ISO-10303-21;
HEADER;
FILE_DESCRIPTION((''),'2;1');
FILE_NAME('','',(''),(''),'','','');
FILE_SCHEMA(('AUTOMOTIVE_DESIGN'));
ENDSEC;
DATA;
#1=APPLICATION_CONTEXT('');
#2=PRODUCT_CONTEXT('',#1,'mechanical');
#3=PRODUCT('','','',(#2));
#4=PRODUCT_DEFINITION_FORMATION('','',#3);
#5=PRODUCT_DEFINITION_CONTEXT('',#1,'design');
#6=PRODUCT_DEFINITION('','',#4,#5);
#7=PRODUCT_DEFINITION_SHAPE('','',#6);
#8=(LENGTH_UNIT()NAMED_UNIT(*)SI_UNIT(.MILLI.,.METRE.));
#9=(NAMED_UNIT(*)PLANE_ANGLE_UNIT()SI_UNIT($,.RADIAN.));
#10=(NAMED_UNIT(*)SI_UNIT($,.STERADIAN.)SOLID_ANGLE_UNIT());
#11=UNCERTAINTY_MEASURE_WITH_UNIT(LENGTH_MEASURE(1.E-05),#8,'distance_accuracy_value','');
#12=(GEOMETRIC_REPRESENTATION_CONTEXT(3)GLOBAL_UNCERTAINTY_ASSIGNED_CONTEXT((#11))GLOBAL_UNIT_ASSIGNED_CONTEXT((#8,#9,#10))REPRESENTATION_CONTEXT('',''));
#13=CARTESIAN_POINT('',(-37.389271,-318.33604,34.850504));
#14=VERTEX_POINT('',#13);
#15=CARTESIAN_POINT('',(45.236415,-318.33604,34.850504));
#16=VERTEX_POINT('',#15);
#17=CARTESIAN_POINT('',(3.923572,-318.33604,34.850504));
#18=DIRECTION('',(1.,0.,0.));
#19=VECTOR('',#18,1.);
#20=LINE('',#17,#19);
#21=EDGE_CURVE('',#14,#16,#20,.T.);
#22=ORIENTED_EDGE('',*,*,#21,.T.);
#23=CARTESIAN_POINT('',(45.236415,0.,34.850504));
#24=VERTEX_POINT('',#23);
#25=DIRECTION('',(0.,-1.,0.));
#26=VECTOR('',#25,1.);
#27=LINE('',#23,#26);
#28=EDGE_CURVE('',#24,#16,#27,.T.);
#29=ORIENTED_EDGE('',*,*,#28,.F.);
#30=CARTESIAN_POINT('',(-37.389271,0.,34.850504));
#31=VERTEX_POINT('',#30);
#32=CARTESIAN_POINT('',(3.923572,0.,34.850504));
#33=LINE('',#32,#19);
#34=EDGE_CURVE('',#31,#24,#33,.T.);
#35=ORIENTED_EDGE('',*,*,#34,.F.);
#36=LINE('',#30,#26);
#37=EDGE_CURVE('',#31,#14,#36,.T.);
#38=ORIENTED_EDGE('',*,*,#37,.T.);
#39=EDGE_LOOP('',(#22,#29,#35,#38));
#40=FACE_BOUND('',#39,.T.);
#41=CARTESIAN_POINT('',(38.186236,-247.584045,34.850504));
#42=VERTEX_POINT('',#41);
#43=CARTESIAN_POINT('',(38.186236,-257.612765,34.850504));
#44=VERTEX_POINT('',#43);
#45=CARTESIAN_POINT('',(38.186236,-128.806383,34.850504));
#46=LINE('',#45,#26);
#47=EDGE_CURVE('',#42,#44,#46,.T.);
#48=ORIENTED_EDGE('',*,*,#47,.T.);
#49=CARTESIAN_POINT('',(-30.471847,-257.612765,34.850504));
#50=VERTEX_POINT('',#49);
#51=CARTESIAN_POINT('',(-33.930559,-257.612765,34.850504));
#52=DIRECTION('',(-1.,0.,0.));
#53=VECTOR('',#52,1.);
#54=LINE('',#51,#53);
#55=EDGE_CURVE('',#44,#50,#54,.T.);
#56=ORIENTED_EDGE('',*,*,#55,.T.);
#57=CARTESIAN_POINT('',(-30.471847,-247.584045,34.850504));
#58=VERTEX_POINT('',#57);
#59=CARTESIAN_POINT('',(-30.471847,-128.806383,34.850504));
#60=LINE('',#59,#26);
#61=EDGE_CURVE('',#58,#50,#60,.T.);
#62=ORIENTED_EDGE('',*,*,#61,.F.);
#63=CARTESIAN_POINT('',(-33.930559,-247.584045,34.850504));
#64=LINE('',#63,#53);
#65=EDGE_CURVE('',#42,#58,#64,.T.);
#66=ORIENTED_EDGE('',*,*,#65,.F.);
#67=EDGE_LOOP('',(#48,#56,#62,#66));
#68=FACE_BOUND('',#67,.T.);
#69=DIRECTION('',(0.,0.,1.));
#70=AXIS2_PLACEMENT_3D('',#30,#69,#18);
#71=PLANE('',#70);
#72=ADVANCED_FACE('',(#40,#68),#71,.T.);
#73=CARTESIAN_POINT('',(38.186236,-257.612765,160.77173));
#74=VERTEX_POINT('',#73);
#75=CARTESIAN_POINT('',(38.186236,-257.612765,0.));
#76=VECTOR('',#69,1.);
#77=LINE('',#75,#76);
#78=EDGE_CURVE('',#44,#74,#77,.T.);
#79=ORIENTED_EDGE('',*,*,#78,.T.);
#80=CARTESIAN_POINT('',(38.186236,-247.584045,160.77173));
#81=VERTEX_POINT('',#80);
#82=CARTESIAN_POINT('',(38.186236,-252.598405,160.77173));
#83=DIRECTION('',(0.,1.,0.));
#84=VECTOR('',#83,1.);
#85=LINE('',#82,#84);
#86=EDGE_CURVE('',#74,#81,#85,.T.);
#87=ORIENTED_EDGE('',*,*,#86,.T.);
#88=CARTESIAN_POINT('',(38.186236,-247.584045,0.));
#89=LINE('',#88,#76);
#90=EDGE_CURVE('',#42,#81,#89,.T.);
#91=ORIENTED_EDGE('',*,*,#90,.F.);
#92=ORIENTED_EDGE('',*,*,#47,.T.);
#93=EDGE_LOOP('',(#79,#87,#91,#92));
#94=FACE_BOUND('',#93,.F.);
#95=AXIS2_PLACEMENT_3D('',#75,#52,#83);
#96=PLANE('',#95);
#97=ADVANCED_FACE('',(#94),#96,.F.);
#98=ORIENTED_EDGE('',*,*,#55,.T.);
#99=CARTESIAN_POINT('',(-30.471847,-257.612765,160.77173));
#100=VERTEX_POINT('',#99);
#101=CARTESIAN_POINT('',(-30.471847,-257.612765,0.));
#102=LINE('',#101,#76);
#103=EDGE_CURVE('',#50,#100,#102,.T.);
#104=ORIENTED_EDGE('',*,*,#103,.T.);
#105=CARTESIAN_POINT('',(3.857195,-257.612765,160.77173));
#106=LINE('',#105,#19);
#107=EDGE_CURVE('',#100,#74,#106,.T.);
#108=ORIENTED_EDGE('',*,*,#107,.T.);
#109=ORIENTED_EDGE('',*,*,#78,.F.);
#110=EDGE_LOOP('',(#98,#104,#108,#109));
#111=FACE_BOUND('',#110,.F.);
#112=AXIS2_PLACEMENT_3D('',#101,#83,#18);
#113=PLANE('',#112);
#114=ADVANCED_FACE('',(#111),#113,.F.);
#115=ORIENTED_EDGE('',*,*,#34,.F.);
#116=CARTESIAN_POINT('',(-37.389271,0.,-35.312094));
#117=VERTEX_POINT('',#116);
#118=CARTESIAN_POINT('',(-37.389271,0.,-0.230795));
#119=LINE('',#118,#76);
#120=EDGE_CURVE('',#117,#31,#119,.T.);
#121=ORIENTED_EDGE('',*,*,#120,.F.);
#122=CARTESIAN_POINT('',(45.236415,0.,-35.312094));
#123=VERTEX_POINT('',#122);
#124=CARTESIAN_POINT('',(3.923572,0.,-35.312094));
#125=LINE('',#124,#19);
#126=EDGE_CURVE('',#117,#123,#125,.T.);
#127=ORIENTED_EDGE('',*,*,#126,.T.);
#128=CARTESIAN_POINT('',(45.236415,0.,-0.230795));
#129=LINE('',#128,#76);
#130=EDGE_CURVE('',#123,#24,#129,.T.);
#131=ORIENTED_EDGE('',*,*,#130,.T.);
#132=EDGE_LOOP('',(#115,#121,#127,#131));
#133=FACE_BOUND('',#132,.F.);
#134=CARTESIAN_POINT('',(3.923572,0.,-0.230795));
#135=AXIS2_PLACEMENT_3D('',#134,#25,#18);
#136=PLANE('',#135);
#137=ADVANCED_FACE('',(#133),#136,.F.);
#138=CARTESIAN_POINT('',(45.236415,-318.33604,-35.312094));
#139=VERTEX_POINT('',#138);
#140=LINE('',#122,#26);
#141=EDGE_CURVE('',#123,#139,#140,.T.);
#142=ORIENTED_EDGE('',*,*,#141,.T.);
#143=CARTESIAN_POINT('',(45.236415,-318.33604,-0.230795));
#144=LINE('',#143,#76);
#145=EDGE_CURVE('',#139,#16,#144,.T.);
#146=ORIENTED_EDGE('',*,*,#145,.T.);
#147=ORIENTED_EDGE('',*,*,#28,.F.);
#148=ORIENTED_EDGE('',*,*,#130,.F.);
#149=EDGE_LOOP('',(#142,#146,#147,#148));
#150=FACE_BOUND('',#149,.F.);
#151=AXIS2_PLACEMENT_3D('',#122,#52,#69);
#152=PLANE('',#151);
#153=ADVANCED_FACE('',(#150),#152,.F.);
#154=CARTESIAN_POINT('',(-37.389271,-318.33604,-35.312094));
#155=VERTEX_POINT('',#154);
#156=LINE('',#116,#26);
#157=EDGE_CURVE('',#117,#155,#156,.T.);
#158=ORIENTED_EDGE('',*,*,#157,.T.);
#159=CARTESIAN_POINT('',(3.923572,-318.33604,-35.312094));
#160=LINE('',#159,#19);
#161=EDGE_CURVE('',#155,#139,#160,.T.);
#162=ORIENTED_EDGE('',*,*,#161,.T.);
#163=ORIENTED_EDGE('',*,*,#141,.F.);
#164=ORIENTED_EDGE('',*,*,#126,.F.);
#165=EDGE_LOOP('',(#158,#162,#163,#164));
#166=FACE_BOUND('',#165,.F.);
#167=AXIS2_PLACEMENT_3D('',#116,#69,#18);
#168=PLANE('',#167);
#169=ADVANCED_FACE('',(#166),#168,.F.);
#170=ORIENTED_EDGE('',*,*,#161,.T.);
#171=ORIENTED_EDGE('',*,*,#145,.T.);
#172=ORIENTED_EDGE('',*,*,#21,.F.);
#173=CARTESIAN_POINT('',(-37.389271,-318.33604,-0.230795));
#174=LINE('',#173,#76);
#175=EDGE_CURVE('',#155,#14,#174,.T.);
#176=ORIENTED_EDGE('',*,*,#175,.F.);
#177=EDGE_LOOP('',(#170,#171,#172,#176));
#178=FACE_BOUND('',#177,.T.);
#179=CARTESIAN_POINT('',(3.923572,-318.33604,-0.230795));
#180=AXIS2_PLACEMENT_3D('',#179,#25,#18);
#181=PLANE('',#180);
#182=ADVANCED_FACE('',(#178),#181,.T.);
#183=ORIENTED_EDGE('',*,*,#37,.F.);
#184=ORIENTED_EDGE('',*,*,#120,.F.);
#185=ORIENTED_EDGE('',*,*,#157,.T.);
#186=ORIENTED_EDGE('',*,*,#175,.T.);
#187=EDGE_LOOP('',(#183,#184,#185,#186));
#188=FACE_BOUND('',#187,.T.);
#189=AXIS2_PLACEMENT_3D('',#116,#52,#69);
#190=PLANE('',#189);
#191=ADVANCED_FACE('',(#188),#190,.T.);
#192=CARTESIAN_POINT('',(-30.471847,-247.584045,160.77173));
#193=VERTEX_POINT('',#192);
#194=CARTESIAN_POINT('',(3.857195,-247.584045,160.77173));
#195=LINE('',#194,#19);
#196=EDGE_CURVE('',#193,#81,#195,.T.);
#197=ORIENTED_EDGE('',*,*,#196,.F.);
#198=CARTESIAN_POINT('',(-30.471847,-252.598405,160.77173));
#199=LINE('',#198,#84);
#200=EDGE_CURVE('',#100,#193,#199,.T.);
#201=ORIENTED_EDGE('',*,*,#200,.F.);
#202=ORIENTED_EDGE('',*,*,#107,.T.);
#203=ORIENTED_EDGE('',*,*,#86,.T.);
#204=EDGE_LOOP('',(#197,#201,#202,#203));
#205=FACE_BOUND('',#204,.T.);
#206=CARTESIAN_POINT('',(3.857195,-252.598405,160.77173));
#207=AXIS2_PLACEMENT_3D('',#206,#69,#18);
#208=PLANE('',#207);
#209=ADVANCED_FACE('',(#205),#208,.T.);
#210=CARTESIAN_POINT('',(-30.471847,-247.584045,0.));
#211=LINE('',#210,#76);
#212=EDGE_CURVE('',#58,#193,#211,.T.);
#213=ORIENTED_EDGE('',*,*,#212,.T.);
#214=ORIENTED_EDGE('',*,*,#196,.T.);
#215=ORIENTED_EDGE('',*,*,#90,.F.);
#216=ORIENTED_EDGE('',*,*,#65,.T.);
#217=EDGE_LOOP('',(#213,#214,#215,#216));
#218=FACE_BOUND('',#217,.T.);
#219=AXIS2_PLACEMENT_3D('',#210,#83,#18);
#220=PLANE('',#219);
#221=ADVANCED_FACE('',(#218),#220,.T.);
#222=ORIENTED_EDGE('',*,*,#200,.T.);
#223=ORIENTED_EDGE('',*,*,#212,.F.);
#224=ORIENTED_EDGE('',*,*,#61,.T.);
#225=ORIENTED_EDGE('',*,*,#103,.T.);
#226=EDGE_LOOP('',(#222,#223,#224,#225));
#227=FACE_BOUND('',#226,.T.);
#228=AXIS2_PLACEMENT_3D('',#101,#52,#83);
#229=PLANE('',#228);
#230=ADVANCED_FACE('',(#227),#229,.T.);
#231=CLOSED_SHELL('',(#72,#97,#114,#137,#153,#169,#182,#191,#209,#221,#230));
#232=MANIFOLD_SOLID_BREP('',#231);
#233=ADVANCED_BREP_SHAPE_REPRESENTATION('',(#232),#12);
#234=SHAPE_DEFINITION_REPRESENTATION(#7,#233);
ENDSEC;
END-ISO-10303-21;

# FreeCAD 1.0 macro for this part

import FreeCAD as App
import Part
import Sketcher
Q = App.Units.Quantity


def add_polygon(sketch, points):
    """Adds a closed chain of lines whose ends are joined by coincident constraints."""
    first, n = sketch.GeometryCount, len(points)
    for a, b in zip(points, points[1:] + points[:1]):
        sketch.addGeometry(Part.LineSegment(App.Vector(*a, 0), App.Vector(*b, 0)), False)
    for i in range(n):
        sketch.addConstraint(Sketcher.Constraint("Coincident", first + i, 2, first + (i + 1) % n, 1))

doc = App.newDocument("Part")
body = doc.addObject("PartDesign::Body", "Body")

# Sketch on XZ plane
sketch1 = body.newObject("Sketcher::SketchObject", "Sketch")
sketch1.AttachmentSupport = (doc.getObject("XZ_Plane"), [""])
sketch1.MapMode = "FlatFace"
add_polygon(sketch1, [(-37, 35), (-37, -35), (45, -35), (45, 35)])  # lines 0-3
sketch1.addConstraint([
    Sketcher.Constraint("Vertical", 0),
    Sketcher.Constraint("Horizontal", 1),
    Sketcher.Constraint("Vertical", 2),
    Sketcher.Constraint("Horizontal", 3),
    Sketcher.Constraint("DistanceY", 0, 2, 0, 1, Q("70.162598 mm")),
    Sketcher.Constraint("DistanceX", 1, 1, 1, 2, Q("82.625687 mm")),
    Sketcher.Constraint("DistanceX", 0, 2, -1, 1, Q("37.389271 mm")),
    Sketcher.Constraint("DistanceY", 0, 2, -1, 1, Q("35.312094 mm")),
])
pad1 = body.newObject("PartDesign::Pad", "Pad")
pad1.Profile = sketch1
pad1.Length = 318.33604

# Sketch on XY plane
sketch2 = body.newObject("Sketcher::SketchObject", "Sketch001")
sketch2.AttachmentSupport = (doc.getObject("XY_Plane"), [""])
sketch2.MapMode = "FlatFace"
add_polygon(sketch2, [(-30, -248), (-30, -258), (38, -258), (38, -248)])  # lines 0-3
sketch2.addConstraint([
    Sketcher.Constraint("Vertical", 0),
    Sketcher.Constraint("Horizontal", 1),
    Sketcher.Constraint("Vertical", 2),
    Sketcher.Constraint("Horizontal", 3),
    Sketcher.Constraint("DistanceY", 0, 2, 0, 1, Q("10.02872 mm")),
    Sketcher.Constraint("DistanceX", 1, 1, 1, 2, Q("68.658083 mm")),
    Sketcher.Constraint("DistanceX", 0, 2, -1, 1, Q("30.471847 mm")),
    Sketcher.Constraint("DistanceY", 0, 2, -1, 1, Q("257.612765 mm")),
])
pad2 = body.newObject("PartDesign::Pad", "Pad001")
pad2.Profile = sketch2
pad2.Length = 160.77173

doc.recompute()
